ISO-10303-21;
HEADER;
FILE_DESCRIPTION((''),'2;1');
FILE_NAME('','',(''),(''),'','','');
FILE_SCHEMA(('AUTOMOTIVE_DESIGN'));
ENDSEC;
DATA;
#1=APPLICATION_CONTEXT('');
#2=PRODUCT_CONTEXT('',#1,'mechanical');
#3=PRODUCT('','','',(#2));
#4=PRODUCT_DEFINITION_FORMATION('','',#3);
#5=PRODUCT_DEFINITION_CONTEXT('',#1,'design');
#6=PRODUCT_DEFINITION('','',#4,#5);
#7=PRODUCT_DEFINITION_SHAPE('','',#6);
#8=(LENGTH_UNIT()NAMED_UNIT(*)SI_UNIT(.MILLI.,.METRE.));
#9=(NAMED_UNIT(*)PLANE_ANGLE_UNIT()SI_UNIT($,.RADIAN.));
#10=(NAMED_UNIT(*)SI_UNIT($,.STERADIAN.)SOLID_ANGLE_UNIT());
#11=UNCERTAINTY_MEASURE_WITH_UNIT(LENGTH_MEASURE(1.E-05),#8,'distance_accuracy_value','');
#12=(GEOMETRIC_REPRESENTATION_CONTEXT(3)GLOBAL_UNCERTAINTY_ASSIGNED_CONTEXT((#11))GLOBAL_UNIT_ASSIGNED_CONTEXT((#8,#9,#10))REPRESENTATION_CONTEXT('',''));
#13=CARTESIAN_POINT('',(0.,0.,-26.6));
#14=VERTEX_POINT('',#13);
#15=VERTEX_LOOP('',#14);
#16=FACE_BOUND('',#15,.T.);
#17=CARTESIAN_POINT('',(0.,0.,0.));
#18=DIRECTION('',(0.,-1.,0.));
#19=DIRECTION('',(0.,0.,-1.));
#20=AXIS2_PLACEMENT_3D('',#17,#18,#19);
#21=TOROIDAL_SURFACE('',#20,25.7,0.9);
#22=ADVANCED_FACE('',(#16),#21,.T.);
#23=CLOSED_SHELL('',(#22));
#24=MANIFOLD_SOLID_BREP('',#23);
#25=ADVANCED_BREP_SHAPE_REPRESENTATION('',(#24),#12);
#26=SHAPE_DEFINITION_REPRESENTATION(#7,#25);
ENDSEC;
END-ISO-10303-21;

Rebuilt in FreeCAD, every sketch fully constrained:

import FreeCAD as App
import Part
import Sketcher

doc = App.newDocument("Part")
params = doc.addObject("Spreadsheet::Sheet", "Params")
for row, (alias, value) in enumerate([
    ("sketch1_diameter", "1.8 mm"),
    ("revolution_angle", "360 deg"),
], start=1):
    params.set(f"A{row}", alias)
    params.set(f"B{row}", "=" + value)
    params.setAlias(f"B{row}", alias)

body = doc.addObject("PartDesign::Body", "Body")

# Sketch on YZ plane
sketch1 = body.newObject("Sketcher::SketchObject", "Sketch")
sketch1.AttachmentSupport = (doc.getObject("YZ_Plane"), [""])
sketch1.MapMode = "FlatFace"
sketch1.addGeometry(Part.Circle(App.Vector(0, 25.7, 0), App.Vector(0, 0, 1), 0.9), False)
sketch1.addConstraint(Sketcher.Constraint("PointOnObject", 0, 3, -2))
sketch1.addConstraint(Sketcher.Constraint("Diameter", 0, 1.8))
sketch1.addConstraint(Sketcher.Constraint("DistanceY", -1, 1, 0, 3, 25.7))
sketch1.setExpression("Constraints[1]", "Params.sketch1_diameter")
revolution = body.newObject("PartDesign::Revolution", "Revolution")
revolution.Profile = sketch1
revolution.ReferenceAxis = (sketch1, ["H_Axis"])
revolution.setExpression("Angle", "Params.revolution_angle")

doc.recompute()
